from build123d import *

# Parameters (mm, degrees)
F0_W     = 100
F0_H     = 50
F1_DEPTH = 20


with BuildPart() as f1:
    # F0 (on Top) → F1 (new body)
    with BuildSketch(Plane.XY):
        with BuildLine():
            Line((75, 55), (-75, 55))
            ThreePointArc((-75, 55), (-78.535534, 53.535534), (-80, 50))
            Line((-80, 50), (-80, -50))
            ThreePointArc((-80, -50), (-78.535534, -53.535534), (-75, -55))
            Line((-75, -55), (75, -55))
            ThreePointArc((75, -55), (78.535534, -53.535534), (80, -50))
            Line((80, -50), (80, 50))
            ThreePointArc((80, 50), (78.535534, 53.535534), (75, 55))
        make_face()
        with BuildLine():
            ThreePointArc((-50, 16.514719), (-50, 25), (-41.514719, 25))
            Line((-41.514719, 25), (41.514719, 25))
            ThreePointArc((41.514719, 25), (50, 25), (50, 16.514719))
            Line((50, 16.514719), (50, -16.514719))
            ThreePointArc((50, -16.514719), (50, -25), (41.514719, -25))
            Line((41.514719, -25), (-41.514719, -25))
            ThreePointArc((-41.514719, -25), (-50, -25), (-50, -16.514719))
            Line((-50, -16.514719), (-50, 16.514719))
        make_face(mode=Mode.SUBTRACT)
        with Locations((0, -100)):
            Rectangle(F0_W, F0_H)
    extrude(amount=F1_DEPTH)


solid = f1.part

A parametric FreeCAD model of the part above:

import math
import FreeCAD as App
import Part
import Sketcher

doc = App.newDocument("Part")
body = doc.addObject("PartDesign::Body", "Body")
body.AllowCompound = True

# Sketch on XY plane
sketch1 = doc.addObject("Sketcher::SketchObject", "Sketch")
body.addObject(sketch1)
sketch1.AttachmentSupport = (doc.XY_Plane, [""])
sketch1.MapMode = "FlatFace"
sketch1.addGeometry([
    Part.LineSegment(App.Vector(75, 55, 0), App.Vector(-75, 55, 0)),  # 0
    Part.ArcOfCircle(Part.Circle(App.Vector(-75, 50, 0), App.Vector(0, 0, 1), 5), math.radians(90), math.radians(180)),  # 1
    Part.LineSegment(App.Vector(-80, 50, 0), App.Vector(-80, -50, 0)),  # 2
    Part.ArcOfCircle(Part.Circle(App.Vector(-75, -50, 0), App.Vector(0, 0, 1), 5), math.radians(180), math.radians(270)),  # 3
    Part.LineSegment(App.Vector(-75, -55, 0), App.Vector(75, -55, 0)),  # 4
    Part.ArcOfCircle(Part.Circle(App.Vector(75, -50, 0), App.Vector(0, 0, 1), 5), math.radians(-90), math.radians(0)),  # 5
    Part.LineSegment(App.Vector(80, -50, 0), App.Vector(80, 50, 0)),  # 6
    Part.ArcOfCircle(Part.Circle(App.Vector(75, 50, 0), App.Vector(0, 0, 1), 5), math.radians(0), math.radians(90)),  # 7
    Part.LineSegment(App.Vector(-50, -16.5, 0), App.Vector(-50, 16.5, 0)),  # 8
    Part.ArcOfCircle(Part.Circle(App.Vector(-45.8, 20.8, 0), App.Vector(0, 0, 1), 6), math.radians(45), math.radians(225)),  # 9
    Part.LineSegment(App.Vector(-41.5, 25, 0), App.Vector(41.5, 25, 0)),  # 10
    Part.ArcOfCircle(Part.Circle(App.Vector(45.8, 20.8, 0), App.Vector(0, 0, 1), 6), math.radians(-45), math.radians(135)),  # 11
    Part.LineSegment(App.Vector(50, 16.5, 0), App.Vector(50, -16.5, 0)),  # 12
    Part.ArcOfCircle(Part.Circle(App.Vector(45.8, -20.8, 0), App.Vector(0, 0, 1), 6), math.radians(-135), math.radians(45)),  # 13
    Part.LineSegment(App.Vector(41.5, -25, 0), App.Vector(-41.5, -25, 0)),  # 14
    Part.ArcOfCircle(Part.Circle(App.Vector(-45.8, -20.8, 0), App.Vector(0, 0, 1), 6), math.radians(135), math.radians(315)),  # 15
    Part.LineSegment(App.Vector(-50, -75, 0), App.Vector(-50, -125, 0)),  # 16
    Part.LineSegment(App.Vector(-50, -125, 0), App.Vector(50, -125, 0)),  # 17
    Part.LineSegment(App.Vector(50, -125, 0), App.Vector(50, -75, 0)),  # 18
    Part.LineSegment(App.Vector(50, -75, 0), App.Vector(-50, -75, 0)),  # 19
], False)
sketch1.addConstraint([
    Sketcher.Constraint("Tangent", 0, 2, 1, 1),
    Sketcher.Constraint("Tangent", 1, 2, 2, 1),
    Sketcher.Constraint("Tangent", 2, 2, 3, 1),
    Sketcher.Constraint("Tangent", 3, 2, 4, 1),
    Sketcher.Constraint("Tangent", 4, 2, 5, 1),
    Sketcher.Constraint("Tangent", 5, 2, 6, 1),
    Sketcher.Constraint("Tangent", 6, 2, 7, 1),
    Sketcher.Constraint("Tangent", 7, 2, 0, 1),
    Sketcher.Constraint("Coincident", 8, 2, 9, 2),
    Sketcher.Constraint("Coincident", 9, 1, 10, 1),
    Sketcher.Constraint("Coincident", 10, 2, 11, 2),
    Sketcher.Constraint("Coincident", 11, 1, 12, 1),
    Sketcher.Constraint("Coincident", 12, 2, 13, 2),
    Sketcher.Constraint("Coincident", 13, 1, 14, 1),
    Sketcher.Constraint("Coincident", 14, 2, 15, 2),
    Sketcher.Constraint("Coincident", 15, 1, 8, 1),
    Sketcher.Constraint("Coincident", 16, 2, 17, 1),
    Sketcher.Constraint("Coincident", 17, 2, 18, 1),
    Sketcher.Constraint("Coincident", 18, 2, 19, 1),
    Sketcher.Constraint("Coincident", 19, 2, 16, 1),
    Sketcher.Constraint("Horizontal", 0),
    Sketcher.Constraint("Vertical", 2),
    Sketcher.Constraint("Horizontal", 4),
    Sketcher.Constraint("Vertical", 6),
    Sketcher.Constraint("Vertical", 8),
    Sketcher.Constraint("Horizontal", 10),
    Sketcher.Constraint("Vertical", 12),
    Sketcher.Constraint("Horizontal", 14),
    Sketcher.Constraint("Vertical", 16),
    Sketcher.Constraint("Horizontal", 17),
    Sketcher.Constraint("Vertical", 18),
    Sketcher.Constraint("Horizontal", 19),
    Sketcher.Constraint("Equal", 1, 3),
    Sketcher.Constraint("Equal", 3, 5),
    Sketcher.Constraint("Equal", 5, 7),
    Sketcher.Constraint("Equal", 9, 11),
    Sketcher.Constraint("Equal", 11, 13),
    Sketcher.Constraint("Equal", 13, 15),
    Sketcher.Constraint("Symmetric", 1, 3, 5, 3, -1, 1),
    Sketcher.Constraint("Symmetric", 9, 3, 13, 3, -1, 1),
    Sketcher.Constraint("Symmetric", 11, 3, 15, 3, -1, 1),
    Sketcher.Constraint("Symmetric", 9, 3, 11, 3, -2),
    Sketcher.Constraint("Horizontal", 8, 2, 11, 1),
    Sketcher.Constraint("Vertical", 10, 2, 13, 1),
    Sketcher.Constraint("Vertical", 15, 1, 16, 2),
    Sketcher.Constraint("Vertical", 12, 2, 17, 2),
    Sketcher.Constraint("Equal", 19, 2),
    Sketcher.Constraint("Radius", 1, 5.0),
    Sketcher.Constraint("Radius", 9, 6.0),
    Sketcher.Constraint("DistanceX", 0, 2, 0, 1, 150.0),
    Sketcher.Constraint("DistanceX", 17, 1, 17, 2, 100.0),
    Sketcher.Constraint("DistanceY", 16, 2, 16, 1, 50.0),
    Sketcher.Constraint("DistanceY", -1, 1, 9, 1, 25.0),
    Sketcher.Constraint("DistanceY", 16, 2, -1, 1, 125.0),
    Sketcher.Constraint("DistanceX", 10, 1, 10, 2, 83.029438),
    Sketcher.Constraint("DistanceX", 9, 3, -1, 1, 45.757359),
])
pad1 = doc.addObject("PartDesign::Pad", "Pad")
body.addObject(pad1)
pad1.Profile = sketch1
pad1.Length = 20

doc.recompute()
